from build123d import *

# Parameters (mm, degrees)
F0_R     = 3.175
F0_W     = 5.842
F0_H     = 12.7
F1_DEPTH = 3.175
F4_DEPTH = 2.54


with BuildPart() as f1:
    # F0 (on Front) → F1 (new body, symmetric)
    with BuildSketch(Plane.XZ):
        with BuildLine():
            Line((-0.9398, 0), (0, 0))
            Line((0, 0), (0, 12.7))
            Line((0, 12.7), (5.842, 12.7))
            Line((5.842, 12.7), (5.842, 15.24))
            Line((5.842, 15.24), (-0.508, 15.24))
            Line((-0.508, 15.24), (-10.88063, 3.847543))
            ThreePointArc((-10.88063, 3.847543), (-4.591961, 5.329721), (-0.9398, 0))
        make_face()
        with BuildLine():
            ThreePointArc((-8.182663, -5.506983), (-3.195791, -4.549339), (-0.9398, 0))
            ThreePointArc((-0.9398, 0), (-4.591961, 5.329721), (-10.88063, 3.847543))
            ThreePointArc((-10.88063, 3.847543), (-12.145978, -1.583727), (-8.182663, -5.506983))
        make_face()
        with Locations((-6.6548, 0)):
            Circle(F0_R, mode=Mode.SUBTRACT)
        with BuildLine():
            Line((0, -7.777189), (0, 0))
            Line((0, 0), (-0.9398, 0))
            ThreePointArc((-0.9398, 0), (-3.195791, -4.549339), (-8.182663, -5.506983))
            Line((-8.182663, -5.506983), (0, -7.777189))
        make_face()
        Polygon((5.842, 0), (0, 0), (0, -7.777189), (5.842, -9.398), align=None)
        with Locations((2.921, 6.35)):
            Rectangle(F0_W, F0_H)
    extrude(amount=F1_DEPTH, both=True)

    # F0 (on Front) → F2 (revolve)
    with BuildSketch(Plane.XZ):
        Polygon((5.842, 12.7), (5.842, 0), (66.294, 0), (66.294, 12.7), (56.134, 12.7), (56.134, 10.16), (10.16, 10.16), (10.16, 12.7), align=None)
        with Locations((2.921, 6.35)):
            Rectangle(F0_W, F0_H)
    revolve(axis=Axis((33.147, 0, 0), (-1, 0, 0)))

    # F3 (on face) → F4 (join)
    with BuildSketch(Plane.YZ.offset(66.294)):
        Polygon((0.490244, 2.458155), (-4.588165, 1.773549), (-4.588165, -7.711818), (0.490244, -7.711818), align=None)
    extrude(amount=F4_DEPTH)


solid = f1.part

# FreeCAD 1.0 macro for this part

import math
import FreeCAD as App
import Part
import Sketcher
Q = App.Units.Quantity

doc = App.newDocument("Part")
body = doc.addObject("PartDesign::Body", "Body")

sketch1 = doc.addObject("Sketcher::SketchObject", "Sketch")
body.addObject(sketch1)
sketch1.AttachmentSupport = (doc.XZ_Plane, [""])
sketch1.MapMode = "FlatFace"
sketch1.addGeometry(Part.LineSegment(App.Vector(5.8, 15.2, 0), App.Vector(-0.5, 15.2, 0)), False)
sketch1.addGeometry(Part.LineSegment(App.Vector(-0.5, 15.2, 0), App.Vector(-10.9, 3.8, 0)), False)
sketch1.addGeometry(Part.ArcOfCircle(Part.Circle(App.Vector(-6.7, 0, 0), App.Vector(0, 0, 1), 5.7), math.radians(138), math.radians(254)), False)
sketch1.addGeometry(Part.LineSegment(App.Vector(-8.2, -5.5, 0), App.Vector(0, -7.8, 0)), False)
sketch1.addGeometry(Part.LineSegment(App.Vector(0, -7.8, 0), App.Vector(5.8, -9.4, 0)), False)
sketch1.addGeometry(Part.LineSegment(App.Vector(5.8, -9.4, 0), App.Vector(5.8, 15.2, 0)), False)
sketch1.addGeometry(Part.Circle(App.Vector(-6.7, 0, 0), App.Vector(0, 0, 1), 3.2), False)
sketch1.addConstraint(Sketcher.Constraint("Coincident", 0, 2, 1, 1))
sketch1.addConstraint(Sketcher.Constraint("Tangent", 1, 2, 2, 1))
sketch1.addConstraint(Sketcher.Constraint("Tangent", 2, 2, 3, 1))
sketch1.addConstraint(Sketcher.Constraint("Coincident", 3, 2, 4, 1))
sketch1.addConstraint(Sketcher.Constraint("Coincident", 4, 2, 5, 1))
sketch1.addConstraint(Sketcher.Constraint("Coincident", 5, 2, 0, 1))
sketch1.addConstraint(Sketcher.Constraint("Horizontal", 0))
sketch1.addConstraint(Sketcher.Constraint("Vertical", 5))
sketch1.addConstraint(Sketcher.Constraint("Coincident", 6, 3, 2, 3))
sketch1.addConstraint(Sketcher.Constraint("PointOnObject", 2, 3, -1))
sketch1.addConstraint(Sketcher.Constraint("PointOnObject", 3, 2, -2))
sketch1.addConstraint(Sketcher.Constraint("Parallel", 3, 4))
sketch1.addConstraint(Sketcher.Constraint("Diameter", 6, Q("0.25 in")))
sketch1.addConstraint(Sketcher.Constraint("Radius", 2, Q("0.225 in")))
sketch1.addConstraint(Sketcher.Constraint("DistanceX", 0, 2, 0, 1, Q("0.25 in")))
sketch1.addConstraint(Sketcher.Constraint("DistanceY", 5, 1, 5, 2, Q("0.97 in")))
sketch1.addConstraint(Sketcher.Constraint("DistanceY", -1, 1, 0, 2, Q("0.6 in")))
sketch1.addConstraint(Sketcher.Constraint("DistanceX", 0, 2, -1, 1, Q("0.02 in")))
sketch1.addConstraint(Sketcher.Constraint("DistanceX", 2, 3, -1, 1, Q("0.262 in")))
pad1 = doc.addObject("PartDesign::Pad", "Pad")
body.addObject(pad1)
pad1.Profile = sketch1
pad1.Length = Q("0.25 in")
pad1.Midplane = True

sketch2 = doc.addObject("Sketcher::SketchObject", "Sketch001")
body.addObject(sketch2)
sketch2.AttachmentSupport = (doc.XZ_Plane, [""])
sketch2.MapMode = "FlatFace"
sketch2.addGeometry(Part.LineSegment(App.Vector(66.3, 0, 0), App.Vector(66.3, 12.7, 0)), False)
sketch2.addGeometry(Part.LineSegment(App.Vector(66.3, 12.7, 0), App.Vector(56.1, 12.7, 0)), False)
sketch2.addGeometry(Part.LineSegment(App.Vector(56.1, 12.7, 0), App.Vector(56.1, 10.2, 0)), False)
sketch2.addGeometry(Part.LineSegment(App.Vector(56.1, 10.2, 0), App.Vector(10.2, 10.2, 0)), False)
sketch2.addGeometry(Part.LineSegment(App.Vector(10.2, 10.2, 0), App.Vector(10.2, 12.7, 0)), False)
sketch2.addGeometry(Part.LineSegment(App.Vector(10.2, 12.7, 0), App.Vector(0, 12.7, 0)), False)
sketch2.addGeometry(Part.LineSegment(App.Vector(0, 12.7, 0), App.Vector(0, 0, 0)), False)
sketch2.addGeometry(Part.LineSegment(App.Vector(0, 0, 0), App.Vector(66.3, 0, 0)), False)
sketch2.addConstraint(Sketcher.Constraint("Coincident", 0, 2, 1, 1))
sketch2.addConstraint(Sketcher.Constraint("Coincident", 1, 2, 2, 1))
sketch2.addConstraint(Sketcher.Constraint("Coincident", 2, 2, 3, 1))
sketch2.addConstraint(Sketcher.Constraint("Coincident", 3, 2, 4, 1))
sketch2.addConstraint(Sketcher.Constraint("Coincident", 4, 2, 5, 1))
sketch2.addConstraint(Sketcher.Constraint("Coincident", 5, 2, 6, 1))
sketch2.addConstraint(Sketcher.Constraint("Coincident", 6, 2, 7, 1))
sketch2.addConstraint(Sketcher.Constraint("Coincident", 7, 2, 0, 1))
sketch2.addConstraint(Sketcher.Constraint("Vertical", 0))
sketch2.addConstraint(Sketcher.Constraint("Horizontal", 1))
sketch2.addConstraint(Sketcher.Constraint("Vertical", 2))
sketch2.addConstraint(Sketcher.Constraint("Horizontal", 3))
sketch2.addConstraint(Sketcher.Constraint("Vertical", 4))
sketch2.addConstraint(Sketcher.Constraint("Horizontal", 5))
sketch2.addConstraint(Sketcher.Constraint("Vertical", 6))
sketch2.addConstraint(Sketcher.Constraint("Horizontal", 7))
sketch2.addConstraint(Sketcher.Constraint("Coincident", 6, 2, -1, 1))
sketch2.addConstraint(Sketcher.Constraint("Horizontal", 1, 2, 4, 2))
sketch2.addConstraint(Sketcher.Constraint("Equal", 1, 5))
sketch2.addConstraint(Sketcher.Constraint("DistanceX", 1, 2, 1, 1, Q("0.4 in")))
sketch2.addConstraint(Sketcher.Constraint("DistanceY", 0, 1, 0, 2, Q("0.5 in")))
sketch2.addConstraint(Sketcher.Constraint("DistanceY", 2, 2, 2, 1, Q("0.1 in")))
sketch2.addConstraint(Sketcher.Constraint("DistanceX", 3, 2, 3, 1, Q("1.81 in")))
revolution = doc.addObject("PartDesign::Revolution", "Revolution")
body.addObject(revolution)
revolution.Profile = sketch2
revolution.ReferenceAxis = (sketch2, ["H_Axis"])
revolution.Angle = 360

sketch3 = doc.addObject("Sketcher::SketchObject", "Sketch002")
body.addObject(sketch3)
sketch3.AttachmentSupport = (doc.YZ_Plane, [""])
sketch3.MapMode = "FlatFace"
sketch3.AttachmentOffset = App.Placement(App.Vector(0, 0, 2.61 * 25.4), App.Rotation())
sketch3.addGeometry(Part.LineSegment(App.Vector(0, 2, 0), App.Vector(-5, 2, 0)), False)
sketch3.addGeometry(Part.LineSegment(App.Vector(-5, 2, 0), App.Vector(-5, -8, 0)), False)
sketch3.addGeometry(Part.LineSegment(App.Vector(-5, -8, 0), App.Vector(0, -8, 0)), False)
sketch3.addGeometry(Part.LineSegment(App.Vector(0, -8, 0), App.Vector(0, 2, 0)), False)
sketch3.addConstraint(Sketcher.Constraint("Coincident", 0, 2, 1, 1))
sketch3.addConstraint(Sketcher.Constraint("Coincident", 1, 2, 2, 1))
sketch3.addConstraint(Sketcher.Constraint("Coincident", 2, 2, 3, 1))
sketch3.addConstraint(Sketcher.Constraint("Coincident", 3, 2, 0, 1))
sketch3.addConstraint(Sketcher.Constraint("Vertical", 1))
sketch3.addConstraint(Sketcher.Constraint("Horizontal", 2))
sketch3.addConstraint(Sketcher.Constraint("Vertical", 3))
sketch3.addConstraint(Sketcher.Constraint("DistanceX", 2, 1, 2, 2, Q("5.078409 mm")))
sketch3.addConstraint(Sketcher.Constraint("DistanceY", 1, 2, 1, 1, Q("9.485367 mm")))
sketch3.addConstraint(Sketcher.Constraint("DistanceY", 3, 1, 3, 2, Q("10.169973 mm")))
sketch3.addConstraint(Sketcher.Constraint("DistanceY", -1, 1, 0, 2, Q("1.773549 mm")))
sketch3.addConstraint(Sketcher.Constraint("DistanceX", 0, 2, -1, 1, Q("4.588165 mm")))
pad2 = doc.addObject("PartDesign::Pad", "Pad001")
body.addObject(pad2)
pad2.Profile = sketch3
pad2.Length = Q("0.1 in")

doc.recompute()
